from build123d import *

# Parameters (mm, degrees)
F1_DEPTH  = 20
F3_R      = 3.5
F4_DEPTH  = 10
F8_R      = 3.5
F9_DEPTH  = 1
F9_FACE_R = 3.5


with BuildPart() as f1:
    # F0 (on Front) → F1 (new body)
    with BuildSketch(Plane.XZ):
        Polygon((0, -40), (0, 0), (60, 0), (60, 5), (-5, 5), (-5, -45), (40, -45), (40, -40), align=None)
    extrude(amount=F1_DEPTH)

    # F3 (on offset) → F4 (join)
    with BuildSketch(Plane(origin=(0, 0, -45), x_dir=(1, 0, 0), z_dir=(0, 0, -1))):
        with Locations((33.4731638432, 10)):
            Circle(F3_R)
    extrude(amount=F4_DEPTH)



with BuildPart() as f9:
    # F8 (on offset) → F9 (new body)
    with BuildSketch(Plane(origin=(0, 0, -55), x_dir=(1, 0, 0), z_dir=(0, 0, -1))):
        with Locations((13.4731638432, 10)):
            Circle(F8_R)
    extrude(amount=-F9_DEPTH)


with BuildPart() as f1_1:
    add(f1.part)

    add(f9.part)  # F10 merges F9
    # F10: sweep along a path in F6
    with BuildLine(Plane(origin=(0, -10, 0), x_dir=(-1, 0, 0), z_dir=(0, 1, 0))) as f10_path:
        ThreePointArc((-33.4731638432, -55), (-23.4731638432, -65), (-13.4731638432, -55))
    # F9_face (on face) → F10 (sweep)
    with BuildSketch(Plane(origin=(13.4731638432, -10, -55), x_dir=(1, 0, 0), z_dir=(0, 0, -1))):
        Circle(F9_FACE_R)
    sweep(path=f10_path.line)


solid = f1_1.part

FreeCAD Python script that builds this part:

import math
import FreeCAD as App
import Part
import Sketcher
Q = App.Units.Quantity

doc = App.newDocument("Part")
body = doc.addObject("PartDesign::Body", "Body")

# Sketch on XZ plane
sketch1 = body.newObject("Sketcher::SketchObject", "Sketch")
sketch1.AttachmentSupport = (doc.getObject("XZ_Plane"), [""])
sketch1.MapMode = "FlatFace"
sketch1.addGeometry(Part.LineSegment(App.Vector(0, -40, 0), App.Vector(0, 0, 0)), False)
sketch1.addGeometry(Part.LineSegment(App.Vector(0, 0, 0), App.Vector(60, 0, 0)), False)
sketch1.addGeometry(Part.LineSegment(App.Vector(60, 0, 0), App.Vector(60, 5, 0)), False)
sketch1.addGeometry(Part.LineSegment(App.Vector(60, 5, 0), App.Vector(-5, 5, 0)), False)
sketch1.addGeometry(Part.LineSegment(App.Vector(-5, 5, 0), App.Vector(-5, -45, 0)), False)
sketch1.addGeometry(Part.LineSegment(App.Vector(-5, -45, 0), App.Vector(40, -45, 0)), False)
sketch1.addGeometry(Part.LineSegment(App.Vector(40, -45, 0), App.Vector(40, -40, 0)), False)
sketch1.addGeometry(Part.LineSegment(App.Vector(40, -40, 0), App.Vector(0, -40, 0)), False)
sketch1.addConstraint(Sketcher.Constraint("Coincident", 0, 2, 1, 1))
sketch1.addConstraint(Sketcher.Constraint("Coincident", 1, 2, 2, 1))
sketch1.addConstraint(Sketcher.Constraint("Coincident", 2, 2, 3, 1))
sketch1.addConstraint(Sketcher.Constraint("Coincident", 3, 2, 4, 1))
sketch1.addConstraint(Sketcher.Constraint("Coincident", 4, 2, 5, 1))
sketch1.addConstraint(Sketcher.Constraint("Coincident", 5, 2, 6, 1))
sketch1.addConstraint(Sketcher.Constraint("Coincident", 6, 2, 7, 1))
sketch1.addConstraint(Sketcher.Constraint("Coincident", 7, 2, 0, 1))
sketch1.addConstraint(Sketcher.Constraint("Vertical", 0))
sketch1.addConstraint(Sketcher.Constraint("Horizontal", 1))
sketch1.addConstraint(Sketcher.Constraint("Vertical", 2))
sketch1.addConstraint(Sketcher.Constraint("Horizontal", 3))
sketch1.addConstraint(Sketcher.Constraint("Vertical", 4))
sketch1.addConstraint(Sketcher.Constraint("Horizontal", 5))
sketch1.addConstraint(Sketcher.Constraint("Vertical", 6))
sketch1.addConstraint(Sketcher.Constraint("Horizontal", 7))
sketch1.addConstraint(Sketcher.Constraint("Coincident", 0, 2, -1, 1))
sketch1.addConstraint(Sketcher.Constraint("Equal", 7, 0))
sketch1.addConstraint(Sketcher.Constraint("Equal", 2, 6))
sketch1.addConstraint(Sketcher.Constraint("DistanceX", 1, 1, 1, 2, Q("60 mm")))
sketch1.addConstraint(Sketcher.Constraint("DistanceX", 3, 2, 3, 1, Q("65 mm")))
sketch1.addConstraint(Sketcher.Constraint("DistanceX", 5, 1, 5, 2, Q("45 mm")))
sketch1.addConstraint(Sketcher.Constraint("DistanceY", 2, 1, 2, 2, Q("5 mm")))
pad1 = body.newObject("PartDesign::Pad", "Pad")
pad1.Profile = sketch1
pad1.Length = 20

# Sketch on XY plane
sketch2 = body.newObject("Sketcher::SketchObject", "Sketch001")
sketch2.AttachmentSupport = (doc.getObject("XY_Plane"), [""])
sketch2.MapMode = "FlatFace"
sketch2.AttachmentOffset = App.Placement(App.Vector(0, 0, -45), App.Rotation())
sketch2.addGeometry(Part.Circle(App.Vector(33.473164, -10, 0), App.Vector(0, 0, 1), 3.5), False)
sketch2.addConstraint(Sketcher.Constraint("Diameter", 0, Q("7 mm")))
sketch2.addConstraint(Sketcher.Constraint("DistanceY", 0, 3, -1, 1, Q("10 mm")))
sketch2.addConstraint(Sketcher.Constraint("DistanceX", -1, 1, 0, 3, Q("33.473164 mm")))
pad2 = body.newObject("PartDesign::Pad", "Pad001")
pad2.Profile = sketch2
pad2.Length = 10
pad2.Reversed = True
body2 = doc.addObject("PartDesign::Body", "Body001")

# Sketch on XY plane
sketch3 = body2.newObject("Sketcher::SketchObject", "Sketch002")
sketch3.AttachmentSupport = (doc.getObject("XY_Plane001"), [""])
sketch3.MapMode = "FlatFace"
sketch3.AttachmentOffset = App.Placement(App.Vector(0, 0, -55), App.Rotation())
sketch3.addGeometry(Part.Circle(App.Vector(13.473164, -10, 0), App.Vector(0, 0, 1), 3.5), False)
sketch3.addConstraint(Sketcher.Constraint("Diameter", 0, Q("7 mm")))
sketch3.addConstraint(Sketcher.Constraint("DistanceY", 0, 3, -1, 1, Q("10 mm")))
sketch3.addConstraint(Sketcher.Constraint("DistanceX", -1, 1, 0, 3, Q("13.473164 mm")))
pad3 = body2.newObject("PartDesign::Pad", "Pad002")
pad3.Profile = sketch3
pad3.Length = 1
body.AllowCompound = True
doc.recompute()

boolean = body.newObject("PartDesign::Boolean", "Boolean")
boolean.Type = "Fuse"
boolean.addObjects([body2])

# Sketch on XY plane
sketch4 = body.newObject("Sketcher::SketchObject", "Sketch003")
sketch4.AttachmentSupport = (doc.getObject("XY_Plane"), [""])
sketch4.MapMode = "FlatFace"
sketch4.AttachmentOffset = App.Placement(App.Vector(0, 0, -55), App.Rotation())
sketch4.addGeometry(Part.Circle(App.Vector(13.473164, -10, 0), App.Vector(0, 0, 1), 3.5), False)
sketch4.addConstraint(Sketcher.Constraint("Diameter", 0, Q("7 mm")))
sketch4.addConstraint(Sketcher.Constraint("DistanceY", 0, 3, -1, 1, Q("10 mm")))
sketch4.addConstraint(Sketcher.Constraint("DistanceX", -1, 1, 0, 3, Q("13.473164 mm")))

# Sketch on XZ plane
sketch5 = body.newObject("Sketcher::SketchObject", "Sketch004")
sketch5.AttachmentSupport = (doc.getObject("XZ_Plane"), [""])
sketch5.MapMode = "FlatFace"
sketch5.AttachmentOffset = App.Placement(App.Vector(0, 0, 10), App.Rotation())
sketch5.addGeometry(Part.ArcOfCircle(Part.Circle(App.Vector(23.473164, -55, 0), App.Vector(0, 0, 1), 10), math.radians(180), math.radians(360)), False)
sketch5.addConstraint(Sketcher.Constraint("Radius", 0, Q("10 mm")))
sketch5.addConstraint(Sketcher.Constraint("DistanceY", 0, 3, -1, 1, Q("55 mm")))
sketch5.addConstraint(Sketcher.Constraint("DistanceY", 0, 1, -1, 1, Q("55 mm")))
sketch5.addConstraint(Sketcher.Constraint("DistanceY", 0, 2, -1, 1, Q("55 mm")))
sketch5.addConstraint(Sketcher.Constraint("DistanceX", -1, 1, 0, 3, Q("23.473164 mm")))
doc.recompute()

additivepipe = body.newObject("PartDesign::AdditivePipe", "AdditivePipe")
additivepipe.Profile = sketch4
additivepipe.Spine = (sketch5, ["Edge1"])

doc.recompute()
